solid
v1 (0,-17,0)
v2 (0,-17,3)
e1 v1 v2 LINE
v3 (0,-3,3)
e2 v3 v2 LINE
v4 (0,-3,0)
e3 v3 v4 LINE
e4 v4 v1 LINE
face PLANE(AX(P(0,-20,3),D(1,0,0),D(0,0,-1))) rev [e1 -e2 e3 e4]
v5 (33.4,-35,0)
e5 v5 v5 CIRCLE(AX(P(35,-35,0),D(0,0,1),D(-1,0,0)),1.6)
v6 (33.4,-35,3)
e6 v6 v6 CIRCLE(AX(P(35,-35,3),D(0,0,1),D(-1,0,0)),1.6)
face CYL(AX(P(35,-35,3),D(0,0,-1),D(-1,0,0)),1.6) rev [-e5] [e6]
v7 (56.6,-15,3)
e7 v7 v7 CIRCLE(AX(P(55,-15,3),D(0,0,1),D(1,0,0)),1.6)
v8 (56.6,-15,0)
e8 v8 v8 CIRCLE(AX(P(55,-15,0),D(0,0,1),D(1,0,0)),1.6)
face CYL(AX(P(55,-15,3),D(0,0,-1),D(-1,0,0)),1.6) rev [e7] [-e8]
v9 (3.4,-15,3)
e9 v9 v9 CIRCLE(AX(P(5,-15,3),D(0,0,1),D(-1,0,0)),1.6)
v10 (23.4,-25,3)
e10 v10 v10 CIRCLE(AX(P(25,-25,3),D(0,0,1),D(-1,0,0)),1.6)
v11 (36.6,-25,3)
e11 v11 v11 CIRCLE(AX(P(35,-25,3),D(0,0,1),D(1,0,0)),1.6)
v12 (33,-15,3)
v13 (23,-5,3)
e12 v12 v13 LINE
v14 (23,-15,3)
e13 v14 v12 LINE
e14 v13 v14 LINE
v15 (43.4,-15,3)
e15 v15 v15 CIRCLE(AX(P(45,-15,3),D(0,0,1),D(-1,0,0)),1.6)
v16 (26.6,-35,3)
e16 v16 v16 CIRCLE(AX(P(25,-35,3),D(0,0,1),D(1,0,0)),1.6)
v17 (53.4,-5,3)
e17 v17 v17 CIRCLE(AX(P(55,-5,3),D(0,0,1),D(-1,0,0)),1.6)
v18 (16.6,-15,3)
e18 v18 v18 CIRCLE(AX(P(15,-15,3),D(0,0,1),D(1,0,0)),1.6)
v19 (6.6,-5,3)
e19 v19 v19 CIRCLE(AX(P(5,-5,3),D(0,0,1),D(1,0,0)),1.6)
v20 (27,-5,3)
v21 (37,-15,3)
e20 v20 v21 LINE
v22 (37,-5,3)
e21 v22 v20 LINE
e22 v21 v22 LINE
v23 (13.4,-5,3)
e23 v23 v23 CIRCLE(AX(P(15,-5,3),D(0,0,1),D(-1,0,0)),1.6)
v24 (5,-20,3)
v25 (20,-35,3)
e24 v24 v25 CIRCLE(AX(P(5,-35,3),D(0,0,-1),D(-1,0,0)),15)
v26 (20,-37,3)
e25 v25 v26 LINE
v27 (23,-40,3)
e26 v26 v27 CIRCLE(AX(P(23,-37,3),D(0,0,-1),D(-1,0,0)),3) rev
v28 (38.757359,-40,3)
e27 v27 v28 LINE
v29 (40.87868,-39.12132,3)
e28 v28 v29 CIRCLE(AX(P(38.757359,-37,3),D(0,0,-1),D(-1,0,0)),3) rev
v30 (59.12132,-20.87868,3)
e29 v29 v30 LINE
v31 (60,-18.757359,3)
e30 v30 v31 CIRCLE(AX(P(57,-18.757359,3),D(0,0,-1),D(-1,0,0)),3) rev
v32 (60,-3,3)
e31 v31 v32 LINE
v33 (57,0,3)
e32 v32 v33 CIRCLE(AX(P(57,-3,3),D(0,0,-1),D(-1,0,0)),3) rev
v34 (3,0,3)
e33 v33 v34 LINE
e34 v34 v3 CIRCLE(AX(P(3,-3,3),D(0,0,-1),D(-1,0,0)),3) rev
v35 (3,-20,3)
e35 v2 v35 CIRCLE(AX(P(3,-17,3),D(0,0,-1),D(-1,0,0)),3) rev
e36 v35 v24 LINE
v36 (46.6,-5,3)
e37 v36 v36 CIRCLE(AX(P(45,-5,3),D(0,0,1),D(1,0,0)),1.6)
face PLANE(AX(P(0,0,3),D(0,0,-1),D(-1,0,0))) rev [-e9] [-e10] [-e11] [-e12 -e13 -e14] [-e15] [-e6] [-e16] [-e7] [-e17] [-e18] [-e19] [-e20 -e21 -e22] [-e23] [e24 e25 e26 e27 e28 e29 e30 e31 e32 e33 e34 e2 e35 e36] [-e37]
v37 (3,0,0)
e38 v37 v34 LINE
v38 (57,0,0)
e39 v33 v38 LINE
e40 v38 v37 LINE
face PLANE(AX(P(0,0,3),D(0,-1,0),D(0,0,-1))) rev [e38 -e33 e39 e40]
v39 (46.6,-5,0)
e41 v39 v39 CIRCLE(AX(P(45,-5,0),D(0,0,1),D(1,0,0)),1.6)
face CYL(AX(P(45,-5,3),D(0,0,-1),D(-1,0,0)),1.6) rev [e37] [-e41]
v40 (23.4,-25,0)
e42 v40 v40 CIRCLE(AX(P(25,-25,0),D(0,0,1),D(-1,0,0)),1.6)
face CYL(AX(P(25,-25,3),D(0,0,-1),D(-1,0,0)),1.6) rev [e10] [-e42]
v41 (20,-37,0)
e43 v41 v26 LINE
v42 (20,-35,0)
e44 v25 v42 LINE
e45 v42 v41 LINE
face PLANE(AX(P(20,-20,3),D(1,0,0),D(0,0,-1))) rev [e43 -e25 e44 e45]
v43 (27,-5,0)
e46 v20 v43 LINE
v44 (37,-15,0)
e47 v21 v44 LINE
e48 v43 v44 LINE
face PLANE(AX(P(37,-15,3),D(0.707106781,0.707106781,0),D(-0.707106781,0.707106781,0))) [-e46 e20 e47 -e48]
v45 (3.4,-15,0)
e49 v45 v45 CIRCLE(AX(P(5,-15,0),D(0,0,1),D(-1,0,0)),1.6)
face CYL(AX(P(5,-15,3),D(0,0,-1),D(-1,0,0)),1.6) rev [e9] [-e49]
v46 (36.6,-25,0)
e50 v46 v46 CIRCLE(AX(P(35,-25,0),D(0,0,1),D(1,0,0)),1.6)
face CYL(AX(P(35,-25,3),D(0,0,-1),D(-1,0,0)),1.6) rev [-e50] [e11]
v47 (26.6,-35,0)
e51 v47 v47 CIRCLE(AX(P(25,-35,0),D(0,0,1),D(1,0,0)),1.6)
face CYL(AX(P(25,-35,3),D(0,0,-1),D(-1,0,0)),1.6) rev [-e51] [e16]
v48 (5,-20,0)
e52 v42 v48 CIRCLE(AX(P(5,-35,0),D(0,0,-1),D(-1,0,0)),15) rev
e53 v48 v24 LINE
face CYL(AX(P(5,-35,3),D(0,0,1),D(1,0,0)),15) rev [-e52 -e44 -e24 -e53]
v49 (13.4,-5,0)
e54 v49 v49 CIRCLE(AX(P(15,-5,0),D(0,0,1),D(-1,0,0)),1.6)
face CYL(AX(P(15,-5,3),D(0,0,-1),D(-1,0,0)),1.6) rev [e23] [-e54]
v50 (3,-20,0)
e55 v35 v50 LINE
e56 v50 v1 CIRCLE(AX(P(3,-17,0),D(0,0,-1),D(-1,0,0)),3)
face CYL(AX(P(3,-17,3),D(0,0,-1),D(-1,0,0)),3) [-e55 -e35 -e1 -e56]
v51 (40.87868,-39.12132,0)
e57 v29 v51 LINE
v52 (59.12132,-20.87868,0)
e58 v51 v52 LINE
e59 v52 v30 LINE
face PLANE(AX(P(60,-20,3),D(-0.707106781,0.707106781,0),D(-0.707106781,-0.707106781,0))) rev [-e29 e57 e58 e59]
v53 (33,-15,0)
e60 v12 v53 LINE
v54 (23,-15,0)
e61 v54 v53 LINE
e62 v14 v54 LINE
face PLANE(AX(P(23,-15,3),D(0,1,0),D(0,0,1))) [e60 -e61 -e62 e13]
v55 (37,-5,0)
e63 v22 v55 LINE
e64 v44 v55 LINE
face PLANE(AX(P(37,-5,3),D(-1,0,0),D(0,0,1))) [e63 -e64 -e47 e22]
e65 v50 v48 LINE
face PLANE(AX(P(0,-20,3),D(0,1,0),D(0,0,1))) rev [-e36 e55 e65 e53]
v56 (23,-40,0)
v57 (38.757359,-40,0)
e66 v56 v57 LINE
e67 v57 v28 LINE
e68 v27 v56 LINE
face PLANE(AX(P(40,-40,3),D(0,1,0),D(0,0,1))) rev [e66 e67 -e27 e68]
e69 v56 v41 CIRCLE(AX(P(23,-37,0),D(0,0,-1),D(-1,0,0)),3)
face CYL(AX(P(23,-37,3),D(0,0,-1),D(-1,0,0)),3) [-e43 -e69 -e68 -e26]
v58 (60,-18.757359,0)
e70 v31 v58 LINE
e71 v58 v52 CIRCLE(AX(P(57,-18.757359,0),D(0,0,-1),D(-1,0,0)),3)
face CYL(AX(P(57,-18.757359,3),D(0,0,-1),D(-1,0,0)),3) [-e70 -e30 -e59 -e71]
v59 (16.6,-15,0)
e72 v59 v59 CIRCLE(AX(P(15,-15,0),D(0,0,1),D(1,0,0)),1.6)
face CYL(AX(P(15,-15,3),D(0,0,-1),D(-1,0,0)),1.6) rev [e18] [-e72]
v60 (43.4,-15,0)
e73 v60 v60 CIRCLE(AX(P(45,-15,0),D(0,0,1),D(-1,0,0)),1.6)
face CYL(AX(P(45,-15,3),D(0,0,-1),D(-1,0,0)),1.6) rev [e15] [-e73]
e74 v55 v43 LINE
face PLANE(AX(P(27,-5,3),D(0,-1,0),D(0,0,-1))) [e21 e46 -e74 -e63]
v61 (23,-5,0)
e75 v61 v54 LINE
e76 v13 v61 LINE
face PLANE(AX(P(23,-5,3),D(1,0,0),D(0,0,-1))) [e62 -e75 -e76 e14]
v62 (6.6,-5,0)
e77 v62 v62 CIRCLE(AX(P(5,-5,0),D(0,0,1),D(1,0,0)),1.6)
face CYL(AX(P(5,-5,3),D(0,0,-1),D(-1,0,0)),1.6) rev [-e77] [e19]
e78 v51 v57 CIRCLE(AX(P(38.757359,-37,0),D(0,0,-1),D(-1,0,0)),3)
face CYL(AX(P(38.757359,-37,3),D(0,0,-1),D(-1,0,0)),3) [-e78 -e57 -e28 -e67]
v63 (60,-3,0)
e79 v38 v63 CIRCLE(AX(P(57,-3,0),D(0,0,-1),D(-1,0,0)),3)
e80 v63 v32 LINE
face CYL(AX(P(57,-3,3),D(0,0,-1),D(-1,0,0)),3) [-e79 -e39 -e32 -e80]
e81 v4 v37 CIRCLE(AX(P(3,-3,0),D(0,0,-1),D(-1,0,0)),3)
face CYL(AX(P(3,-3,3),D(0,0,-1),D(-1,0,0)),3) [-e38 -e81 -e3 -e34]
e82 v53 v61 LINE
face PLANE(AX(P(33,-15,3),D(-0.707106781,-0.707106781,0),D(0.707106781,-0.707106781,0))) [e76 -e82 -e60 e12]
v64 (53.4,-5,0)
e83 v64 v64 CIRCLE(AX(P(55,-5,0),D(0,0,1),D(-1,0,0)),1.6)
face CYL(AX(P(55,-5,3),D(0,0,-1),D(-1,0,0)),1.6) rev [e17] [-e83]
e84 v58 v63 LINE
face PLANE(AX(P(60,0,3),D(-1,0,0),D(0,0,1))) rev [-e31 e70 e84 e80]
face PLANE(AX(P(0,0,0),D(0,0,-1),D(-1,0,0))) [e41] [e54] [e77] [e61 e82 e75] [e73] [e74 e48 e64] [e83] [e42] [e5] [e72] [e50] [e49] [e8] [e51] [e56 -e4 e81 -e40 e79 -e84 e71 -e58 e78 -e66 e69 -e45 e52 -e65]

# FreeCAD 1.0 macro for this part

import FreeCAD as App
import Part
import Sketcher


def edges_at(feature, points):
    """Names of the edges that pass closest to the given points."""
    edges = feature.Shape.Edges
    near = lambda p: min(range(len(edges)), key=lambda i: edges[i].distToShape(Part.Vertex(*p))[0])
    return sorted({f"Edge{near(p) + 1}" for p in points})


def add_polygon(sketch, points):
    """Adds a closed chain of lines whose ends are joined by coincident constraints."""
    first, n = sketch.GeometryCount, len(points)
    for a, b in zip(points, points[1:] + points[:1]):
        sketch.addGeometry(Part.LineSegment(App.Vector(*a, 0), App.Vector(*b, 0)), False)
    for i in range(n):
        sketch.addConstraint(Sketcher.Constraint("Coincident", first + i, 2, first + (i + 1) % n, 1))

doc = App.newDocument("Part")
body = doc.addObject("PartDesign::Body", "Body")

# Sketch on XY plane
sketch1 = body.newObject("Sketcher::SketchObject", "Sketch")
sketch1.AttachmentSupport = (doc.getObject("XY_Plane"), [""])
sketch1.MapMode = "FlatFace"
add_polygon(sketch1, [(60, 0), (0, 0), (0, -20), (20, -20), (20, -40), (40, -40), (60, -20)])  # lines 0-6
sketch1.addGeometry(Part.Circle(App.Vector(35, -35, 0), App.Vector(0, 0, 1), 1.6), False)  # 7
sketch1.addGeometry(Part.Circle(App.Vector(35, -25, 0), App.Vector(0, 0, 1), 1.6), False)  # 8
sketch1.addGeometry(Part.Circle(App.Vector(25, -35, 0), App.Vector(0, 0, 1), 1.6), False)  # 9
sketch1.addGeometry(Part.Circle(App.Vector(25, -25, 0), App.Vector(0, 0, 1), 1.6), False)  # 10
sketch1.addGeometry(Part.Circle(App.Vector(55, -15, 0), App.Vector(0, 0, 1), 1.6), False)  # 11
sketch1.addGeometry(Part.Circle(App.Vector(45, -15, 0), App.Vector(0, 0, 1), 1.6), False)  # 12
sketch1.addGeometry(Part.Circle(App.Vector(55, -5, 0), App.Vector(0, 0, 1), 1.6), False)  # 13
sketch1.addGeometry(Part.Circle(App.Vector(45, -5, 0), App.Vector(0, 0, 1), 1.6), False)  # 14
add_polygon(sketch1, [(27, -5), (37, -5), (37, -15)])  # lines 15-17
sketch1.addGeometry(Part.Circle(App.Vector(15, -15, 0), App.Vector(0, 0, 1), 1.6), False)  # 18
sketch1.addGeometry(Part.Circle(App.Vector(5, -15, 0), App.Vector(0, 0, 1), 1.6), False)  # 19
add_polygon(sketch1, [(23, -5), (33, -15), (23, -15)])  # lines 20-22
sketch1.addGeometry(Part.Circle(App.Vector(15, -5, 0), App.Vector(0, 0, 1), 1.6), False)  # 23
sketch1.addGeometry(Part.Circle(App.Vector(5, -5, 0), App.Vector(0, 0, 1), 1.6), False)  # 24
sketch1.addConstraint([
    Sketcher.Constraint("Horizontal", 0),
    Sketcher.Constraint("Vertical", 1),
    Sketcher.Constraint("Horizontal", 2),
    Sketcher.Constraint("Vertical", 3),
    Sketcher.Constraint("Horizontal", 4),
    Sketcher.Constraint("Vertical", 6),
    Sketcher.Constraint("Horizontal", 15),
    Sketcher.Constraint("Vertical", 16),
    Sketcher.Constraint("Horizontal", 21),
    Sketcher.Constraint("Vertical", 22),
    Sketcher.Constraint("Coincident", 0, 2, -1, 1),
    Sketcher.Constraint("Equal", 7, 8),
    Sketcher.Constraint("Equal", 8, 9),
    Sketcher.Constraint("Equal", 9, 10),
    Sketcher.Constraint("Equal", 10, 11),
    Sketcher.Constraint("Equal", 11, 12),
    Sketcher.Constraint("Equal", 12, 13),
    Sketcher.Constraint("Equal", 13, 14),
    Sketcher.Constraint("Equal", 14, 18),
    Sketcher.Constraint("Equal", 18, 19),
    Sketcher.Constraint("Equal", 19, 23),
    Sketcher.Constraint("Equal", 23, 24),
    Sketcher.Constraint("Perpendicular", 5, 17),
    Sketcher.Constraint("Parallel", 17, 20),
    Sketcher.Constraint("Horizontal", 7, 3, 9, 3),
    Sketcher.Constraint("Horizontal", 8, 3, 10, 3),
    Sketcher.Constraint("Horizontal", 11, 3, 12, 3),
    Sketcher.Constraint("Horizontal", 13, 3, 14, 3),
    Sketcher.Constraint("Horizontal", 12, 3, 18, 3),
    Sketcher.Constraint("Horizontal", 18, 3, 19, 3),
    Sketcher.Constraint("Horizontal", 14, 3, 23, 3),
    Sketcher.Constraint("Horizontal", 23, 3, 24, 3),
    Sketcher.Constraint("Horizontal", 2, 2, 5, 2),
    Sketcher.Constraint("Horizontal", 24, 3, 15, 2),
    Sketcher.Constraint("Horizontal", 19, 3, 16, 2),
    Sketcher.Constraint("Horizontal", 16, 2, 20, 2),
    Sketcher.Constraint("Horizontal", 17, 2, 22, 2),
    Sketcher.Constraint("Vertical", 7, 3, 8, 3),
    Sketcher.Constraint("Vertical", 9, 3, 10, 3),
    Sketcher.Constraint("Vertical", 11, 3, 13, 3),
    Sketcher.Constraint("Vertical", 12, 3, 14, 3),
    Sketcher.Constraint("Vertical", 18, 3, 23, 3),
    Sketcher.Constraint("Vertical", 19, 3, 24, 3),
    Sketcher.Constraint("Equal", 2, 4),
    Sketcher.Constraint("Equal", 4, 1),
    Sketcher.Constraint("Equal", 1, 3),
    Sketcher.Constraint("Equal", 21, 16),
    Sketcher.Constraint("Diameter", 7, 3.2),
    Sketcher.Constraint("DistanceX", 0, 2, 0, 1, 60.0),
    Sketcher.Constraint("DistanceX", 15, 1, 15, 2, 10.0),
    Sketcher.Constraint("DistanceX", -1, 1, 7, 3, 35.0),
    Sketcher.Constraint("DistanceY", 7, 3, -1, 1, 35.0),
    Sketcher.Constraint("DistanceY", 8, 3, -1, 1, 25.0),
    Sketcher.Constraint("DistanceX", -1, 1, 9, 3, 25.0),
    Sketcher.Constraint("DistanceX", -1, 1, 11, 3, 55.0),
    Sketcher.Constraint("DistanceY", 11, 3, -1, 1, 15.0),
    Sketcher.Constraint("DistanceX", -1, 1, 12, 3, 45.0),
    Sketcher.Constraint("DistanceX", -1, 1, 18, 3, 15.0),
    Sketcher.Constraint("DistanceX", -1, 1, 19, 3, 5.0),
    Sketcher.Constraint("DistanceX", -1, 1, 15, 2, 37.0),
    Sketcher.Constraint("DistanceX", -1, 1, 20, 2, 33.0),
])
pad1 = body.newObject("PartDesign::Pad", "Pad")
pad1.Profile = sketch1
pad1.Length = 3
doc.recompute()

fillet = body.newObject("PartDesign::Fillet", "Fillet")
fillet.Base = (pad1, edges_at(pad1, [
    (0, 0, 1.5),
    (60, 0, 1.5),
    (60, -20, 1.5),
    (40, -40, 1.5),
    (20, -40, 1.5),
    (0, -20, 1.5),
]))
fillet.Radius = 3
doc.recompute()

fillet2 = body.newObject("PartDesign::Fillet", "Fillet001")
fillet2.Base = (fillet, edges_at(fillet, [(20, -20, 1.5)]))
fillet2.Radius = 15

doc.recompute()
